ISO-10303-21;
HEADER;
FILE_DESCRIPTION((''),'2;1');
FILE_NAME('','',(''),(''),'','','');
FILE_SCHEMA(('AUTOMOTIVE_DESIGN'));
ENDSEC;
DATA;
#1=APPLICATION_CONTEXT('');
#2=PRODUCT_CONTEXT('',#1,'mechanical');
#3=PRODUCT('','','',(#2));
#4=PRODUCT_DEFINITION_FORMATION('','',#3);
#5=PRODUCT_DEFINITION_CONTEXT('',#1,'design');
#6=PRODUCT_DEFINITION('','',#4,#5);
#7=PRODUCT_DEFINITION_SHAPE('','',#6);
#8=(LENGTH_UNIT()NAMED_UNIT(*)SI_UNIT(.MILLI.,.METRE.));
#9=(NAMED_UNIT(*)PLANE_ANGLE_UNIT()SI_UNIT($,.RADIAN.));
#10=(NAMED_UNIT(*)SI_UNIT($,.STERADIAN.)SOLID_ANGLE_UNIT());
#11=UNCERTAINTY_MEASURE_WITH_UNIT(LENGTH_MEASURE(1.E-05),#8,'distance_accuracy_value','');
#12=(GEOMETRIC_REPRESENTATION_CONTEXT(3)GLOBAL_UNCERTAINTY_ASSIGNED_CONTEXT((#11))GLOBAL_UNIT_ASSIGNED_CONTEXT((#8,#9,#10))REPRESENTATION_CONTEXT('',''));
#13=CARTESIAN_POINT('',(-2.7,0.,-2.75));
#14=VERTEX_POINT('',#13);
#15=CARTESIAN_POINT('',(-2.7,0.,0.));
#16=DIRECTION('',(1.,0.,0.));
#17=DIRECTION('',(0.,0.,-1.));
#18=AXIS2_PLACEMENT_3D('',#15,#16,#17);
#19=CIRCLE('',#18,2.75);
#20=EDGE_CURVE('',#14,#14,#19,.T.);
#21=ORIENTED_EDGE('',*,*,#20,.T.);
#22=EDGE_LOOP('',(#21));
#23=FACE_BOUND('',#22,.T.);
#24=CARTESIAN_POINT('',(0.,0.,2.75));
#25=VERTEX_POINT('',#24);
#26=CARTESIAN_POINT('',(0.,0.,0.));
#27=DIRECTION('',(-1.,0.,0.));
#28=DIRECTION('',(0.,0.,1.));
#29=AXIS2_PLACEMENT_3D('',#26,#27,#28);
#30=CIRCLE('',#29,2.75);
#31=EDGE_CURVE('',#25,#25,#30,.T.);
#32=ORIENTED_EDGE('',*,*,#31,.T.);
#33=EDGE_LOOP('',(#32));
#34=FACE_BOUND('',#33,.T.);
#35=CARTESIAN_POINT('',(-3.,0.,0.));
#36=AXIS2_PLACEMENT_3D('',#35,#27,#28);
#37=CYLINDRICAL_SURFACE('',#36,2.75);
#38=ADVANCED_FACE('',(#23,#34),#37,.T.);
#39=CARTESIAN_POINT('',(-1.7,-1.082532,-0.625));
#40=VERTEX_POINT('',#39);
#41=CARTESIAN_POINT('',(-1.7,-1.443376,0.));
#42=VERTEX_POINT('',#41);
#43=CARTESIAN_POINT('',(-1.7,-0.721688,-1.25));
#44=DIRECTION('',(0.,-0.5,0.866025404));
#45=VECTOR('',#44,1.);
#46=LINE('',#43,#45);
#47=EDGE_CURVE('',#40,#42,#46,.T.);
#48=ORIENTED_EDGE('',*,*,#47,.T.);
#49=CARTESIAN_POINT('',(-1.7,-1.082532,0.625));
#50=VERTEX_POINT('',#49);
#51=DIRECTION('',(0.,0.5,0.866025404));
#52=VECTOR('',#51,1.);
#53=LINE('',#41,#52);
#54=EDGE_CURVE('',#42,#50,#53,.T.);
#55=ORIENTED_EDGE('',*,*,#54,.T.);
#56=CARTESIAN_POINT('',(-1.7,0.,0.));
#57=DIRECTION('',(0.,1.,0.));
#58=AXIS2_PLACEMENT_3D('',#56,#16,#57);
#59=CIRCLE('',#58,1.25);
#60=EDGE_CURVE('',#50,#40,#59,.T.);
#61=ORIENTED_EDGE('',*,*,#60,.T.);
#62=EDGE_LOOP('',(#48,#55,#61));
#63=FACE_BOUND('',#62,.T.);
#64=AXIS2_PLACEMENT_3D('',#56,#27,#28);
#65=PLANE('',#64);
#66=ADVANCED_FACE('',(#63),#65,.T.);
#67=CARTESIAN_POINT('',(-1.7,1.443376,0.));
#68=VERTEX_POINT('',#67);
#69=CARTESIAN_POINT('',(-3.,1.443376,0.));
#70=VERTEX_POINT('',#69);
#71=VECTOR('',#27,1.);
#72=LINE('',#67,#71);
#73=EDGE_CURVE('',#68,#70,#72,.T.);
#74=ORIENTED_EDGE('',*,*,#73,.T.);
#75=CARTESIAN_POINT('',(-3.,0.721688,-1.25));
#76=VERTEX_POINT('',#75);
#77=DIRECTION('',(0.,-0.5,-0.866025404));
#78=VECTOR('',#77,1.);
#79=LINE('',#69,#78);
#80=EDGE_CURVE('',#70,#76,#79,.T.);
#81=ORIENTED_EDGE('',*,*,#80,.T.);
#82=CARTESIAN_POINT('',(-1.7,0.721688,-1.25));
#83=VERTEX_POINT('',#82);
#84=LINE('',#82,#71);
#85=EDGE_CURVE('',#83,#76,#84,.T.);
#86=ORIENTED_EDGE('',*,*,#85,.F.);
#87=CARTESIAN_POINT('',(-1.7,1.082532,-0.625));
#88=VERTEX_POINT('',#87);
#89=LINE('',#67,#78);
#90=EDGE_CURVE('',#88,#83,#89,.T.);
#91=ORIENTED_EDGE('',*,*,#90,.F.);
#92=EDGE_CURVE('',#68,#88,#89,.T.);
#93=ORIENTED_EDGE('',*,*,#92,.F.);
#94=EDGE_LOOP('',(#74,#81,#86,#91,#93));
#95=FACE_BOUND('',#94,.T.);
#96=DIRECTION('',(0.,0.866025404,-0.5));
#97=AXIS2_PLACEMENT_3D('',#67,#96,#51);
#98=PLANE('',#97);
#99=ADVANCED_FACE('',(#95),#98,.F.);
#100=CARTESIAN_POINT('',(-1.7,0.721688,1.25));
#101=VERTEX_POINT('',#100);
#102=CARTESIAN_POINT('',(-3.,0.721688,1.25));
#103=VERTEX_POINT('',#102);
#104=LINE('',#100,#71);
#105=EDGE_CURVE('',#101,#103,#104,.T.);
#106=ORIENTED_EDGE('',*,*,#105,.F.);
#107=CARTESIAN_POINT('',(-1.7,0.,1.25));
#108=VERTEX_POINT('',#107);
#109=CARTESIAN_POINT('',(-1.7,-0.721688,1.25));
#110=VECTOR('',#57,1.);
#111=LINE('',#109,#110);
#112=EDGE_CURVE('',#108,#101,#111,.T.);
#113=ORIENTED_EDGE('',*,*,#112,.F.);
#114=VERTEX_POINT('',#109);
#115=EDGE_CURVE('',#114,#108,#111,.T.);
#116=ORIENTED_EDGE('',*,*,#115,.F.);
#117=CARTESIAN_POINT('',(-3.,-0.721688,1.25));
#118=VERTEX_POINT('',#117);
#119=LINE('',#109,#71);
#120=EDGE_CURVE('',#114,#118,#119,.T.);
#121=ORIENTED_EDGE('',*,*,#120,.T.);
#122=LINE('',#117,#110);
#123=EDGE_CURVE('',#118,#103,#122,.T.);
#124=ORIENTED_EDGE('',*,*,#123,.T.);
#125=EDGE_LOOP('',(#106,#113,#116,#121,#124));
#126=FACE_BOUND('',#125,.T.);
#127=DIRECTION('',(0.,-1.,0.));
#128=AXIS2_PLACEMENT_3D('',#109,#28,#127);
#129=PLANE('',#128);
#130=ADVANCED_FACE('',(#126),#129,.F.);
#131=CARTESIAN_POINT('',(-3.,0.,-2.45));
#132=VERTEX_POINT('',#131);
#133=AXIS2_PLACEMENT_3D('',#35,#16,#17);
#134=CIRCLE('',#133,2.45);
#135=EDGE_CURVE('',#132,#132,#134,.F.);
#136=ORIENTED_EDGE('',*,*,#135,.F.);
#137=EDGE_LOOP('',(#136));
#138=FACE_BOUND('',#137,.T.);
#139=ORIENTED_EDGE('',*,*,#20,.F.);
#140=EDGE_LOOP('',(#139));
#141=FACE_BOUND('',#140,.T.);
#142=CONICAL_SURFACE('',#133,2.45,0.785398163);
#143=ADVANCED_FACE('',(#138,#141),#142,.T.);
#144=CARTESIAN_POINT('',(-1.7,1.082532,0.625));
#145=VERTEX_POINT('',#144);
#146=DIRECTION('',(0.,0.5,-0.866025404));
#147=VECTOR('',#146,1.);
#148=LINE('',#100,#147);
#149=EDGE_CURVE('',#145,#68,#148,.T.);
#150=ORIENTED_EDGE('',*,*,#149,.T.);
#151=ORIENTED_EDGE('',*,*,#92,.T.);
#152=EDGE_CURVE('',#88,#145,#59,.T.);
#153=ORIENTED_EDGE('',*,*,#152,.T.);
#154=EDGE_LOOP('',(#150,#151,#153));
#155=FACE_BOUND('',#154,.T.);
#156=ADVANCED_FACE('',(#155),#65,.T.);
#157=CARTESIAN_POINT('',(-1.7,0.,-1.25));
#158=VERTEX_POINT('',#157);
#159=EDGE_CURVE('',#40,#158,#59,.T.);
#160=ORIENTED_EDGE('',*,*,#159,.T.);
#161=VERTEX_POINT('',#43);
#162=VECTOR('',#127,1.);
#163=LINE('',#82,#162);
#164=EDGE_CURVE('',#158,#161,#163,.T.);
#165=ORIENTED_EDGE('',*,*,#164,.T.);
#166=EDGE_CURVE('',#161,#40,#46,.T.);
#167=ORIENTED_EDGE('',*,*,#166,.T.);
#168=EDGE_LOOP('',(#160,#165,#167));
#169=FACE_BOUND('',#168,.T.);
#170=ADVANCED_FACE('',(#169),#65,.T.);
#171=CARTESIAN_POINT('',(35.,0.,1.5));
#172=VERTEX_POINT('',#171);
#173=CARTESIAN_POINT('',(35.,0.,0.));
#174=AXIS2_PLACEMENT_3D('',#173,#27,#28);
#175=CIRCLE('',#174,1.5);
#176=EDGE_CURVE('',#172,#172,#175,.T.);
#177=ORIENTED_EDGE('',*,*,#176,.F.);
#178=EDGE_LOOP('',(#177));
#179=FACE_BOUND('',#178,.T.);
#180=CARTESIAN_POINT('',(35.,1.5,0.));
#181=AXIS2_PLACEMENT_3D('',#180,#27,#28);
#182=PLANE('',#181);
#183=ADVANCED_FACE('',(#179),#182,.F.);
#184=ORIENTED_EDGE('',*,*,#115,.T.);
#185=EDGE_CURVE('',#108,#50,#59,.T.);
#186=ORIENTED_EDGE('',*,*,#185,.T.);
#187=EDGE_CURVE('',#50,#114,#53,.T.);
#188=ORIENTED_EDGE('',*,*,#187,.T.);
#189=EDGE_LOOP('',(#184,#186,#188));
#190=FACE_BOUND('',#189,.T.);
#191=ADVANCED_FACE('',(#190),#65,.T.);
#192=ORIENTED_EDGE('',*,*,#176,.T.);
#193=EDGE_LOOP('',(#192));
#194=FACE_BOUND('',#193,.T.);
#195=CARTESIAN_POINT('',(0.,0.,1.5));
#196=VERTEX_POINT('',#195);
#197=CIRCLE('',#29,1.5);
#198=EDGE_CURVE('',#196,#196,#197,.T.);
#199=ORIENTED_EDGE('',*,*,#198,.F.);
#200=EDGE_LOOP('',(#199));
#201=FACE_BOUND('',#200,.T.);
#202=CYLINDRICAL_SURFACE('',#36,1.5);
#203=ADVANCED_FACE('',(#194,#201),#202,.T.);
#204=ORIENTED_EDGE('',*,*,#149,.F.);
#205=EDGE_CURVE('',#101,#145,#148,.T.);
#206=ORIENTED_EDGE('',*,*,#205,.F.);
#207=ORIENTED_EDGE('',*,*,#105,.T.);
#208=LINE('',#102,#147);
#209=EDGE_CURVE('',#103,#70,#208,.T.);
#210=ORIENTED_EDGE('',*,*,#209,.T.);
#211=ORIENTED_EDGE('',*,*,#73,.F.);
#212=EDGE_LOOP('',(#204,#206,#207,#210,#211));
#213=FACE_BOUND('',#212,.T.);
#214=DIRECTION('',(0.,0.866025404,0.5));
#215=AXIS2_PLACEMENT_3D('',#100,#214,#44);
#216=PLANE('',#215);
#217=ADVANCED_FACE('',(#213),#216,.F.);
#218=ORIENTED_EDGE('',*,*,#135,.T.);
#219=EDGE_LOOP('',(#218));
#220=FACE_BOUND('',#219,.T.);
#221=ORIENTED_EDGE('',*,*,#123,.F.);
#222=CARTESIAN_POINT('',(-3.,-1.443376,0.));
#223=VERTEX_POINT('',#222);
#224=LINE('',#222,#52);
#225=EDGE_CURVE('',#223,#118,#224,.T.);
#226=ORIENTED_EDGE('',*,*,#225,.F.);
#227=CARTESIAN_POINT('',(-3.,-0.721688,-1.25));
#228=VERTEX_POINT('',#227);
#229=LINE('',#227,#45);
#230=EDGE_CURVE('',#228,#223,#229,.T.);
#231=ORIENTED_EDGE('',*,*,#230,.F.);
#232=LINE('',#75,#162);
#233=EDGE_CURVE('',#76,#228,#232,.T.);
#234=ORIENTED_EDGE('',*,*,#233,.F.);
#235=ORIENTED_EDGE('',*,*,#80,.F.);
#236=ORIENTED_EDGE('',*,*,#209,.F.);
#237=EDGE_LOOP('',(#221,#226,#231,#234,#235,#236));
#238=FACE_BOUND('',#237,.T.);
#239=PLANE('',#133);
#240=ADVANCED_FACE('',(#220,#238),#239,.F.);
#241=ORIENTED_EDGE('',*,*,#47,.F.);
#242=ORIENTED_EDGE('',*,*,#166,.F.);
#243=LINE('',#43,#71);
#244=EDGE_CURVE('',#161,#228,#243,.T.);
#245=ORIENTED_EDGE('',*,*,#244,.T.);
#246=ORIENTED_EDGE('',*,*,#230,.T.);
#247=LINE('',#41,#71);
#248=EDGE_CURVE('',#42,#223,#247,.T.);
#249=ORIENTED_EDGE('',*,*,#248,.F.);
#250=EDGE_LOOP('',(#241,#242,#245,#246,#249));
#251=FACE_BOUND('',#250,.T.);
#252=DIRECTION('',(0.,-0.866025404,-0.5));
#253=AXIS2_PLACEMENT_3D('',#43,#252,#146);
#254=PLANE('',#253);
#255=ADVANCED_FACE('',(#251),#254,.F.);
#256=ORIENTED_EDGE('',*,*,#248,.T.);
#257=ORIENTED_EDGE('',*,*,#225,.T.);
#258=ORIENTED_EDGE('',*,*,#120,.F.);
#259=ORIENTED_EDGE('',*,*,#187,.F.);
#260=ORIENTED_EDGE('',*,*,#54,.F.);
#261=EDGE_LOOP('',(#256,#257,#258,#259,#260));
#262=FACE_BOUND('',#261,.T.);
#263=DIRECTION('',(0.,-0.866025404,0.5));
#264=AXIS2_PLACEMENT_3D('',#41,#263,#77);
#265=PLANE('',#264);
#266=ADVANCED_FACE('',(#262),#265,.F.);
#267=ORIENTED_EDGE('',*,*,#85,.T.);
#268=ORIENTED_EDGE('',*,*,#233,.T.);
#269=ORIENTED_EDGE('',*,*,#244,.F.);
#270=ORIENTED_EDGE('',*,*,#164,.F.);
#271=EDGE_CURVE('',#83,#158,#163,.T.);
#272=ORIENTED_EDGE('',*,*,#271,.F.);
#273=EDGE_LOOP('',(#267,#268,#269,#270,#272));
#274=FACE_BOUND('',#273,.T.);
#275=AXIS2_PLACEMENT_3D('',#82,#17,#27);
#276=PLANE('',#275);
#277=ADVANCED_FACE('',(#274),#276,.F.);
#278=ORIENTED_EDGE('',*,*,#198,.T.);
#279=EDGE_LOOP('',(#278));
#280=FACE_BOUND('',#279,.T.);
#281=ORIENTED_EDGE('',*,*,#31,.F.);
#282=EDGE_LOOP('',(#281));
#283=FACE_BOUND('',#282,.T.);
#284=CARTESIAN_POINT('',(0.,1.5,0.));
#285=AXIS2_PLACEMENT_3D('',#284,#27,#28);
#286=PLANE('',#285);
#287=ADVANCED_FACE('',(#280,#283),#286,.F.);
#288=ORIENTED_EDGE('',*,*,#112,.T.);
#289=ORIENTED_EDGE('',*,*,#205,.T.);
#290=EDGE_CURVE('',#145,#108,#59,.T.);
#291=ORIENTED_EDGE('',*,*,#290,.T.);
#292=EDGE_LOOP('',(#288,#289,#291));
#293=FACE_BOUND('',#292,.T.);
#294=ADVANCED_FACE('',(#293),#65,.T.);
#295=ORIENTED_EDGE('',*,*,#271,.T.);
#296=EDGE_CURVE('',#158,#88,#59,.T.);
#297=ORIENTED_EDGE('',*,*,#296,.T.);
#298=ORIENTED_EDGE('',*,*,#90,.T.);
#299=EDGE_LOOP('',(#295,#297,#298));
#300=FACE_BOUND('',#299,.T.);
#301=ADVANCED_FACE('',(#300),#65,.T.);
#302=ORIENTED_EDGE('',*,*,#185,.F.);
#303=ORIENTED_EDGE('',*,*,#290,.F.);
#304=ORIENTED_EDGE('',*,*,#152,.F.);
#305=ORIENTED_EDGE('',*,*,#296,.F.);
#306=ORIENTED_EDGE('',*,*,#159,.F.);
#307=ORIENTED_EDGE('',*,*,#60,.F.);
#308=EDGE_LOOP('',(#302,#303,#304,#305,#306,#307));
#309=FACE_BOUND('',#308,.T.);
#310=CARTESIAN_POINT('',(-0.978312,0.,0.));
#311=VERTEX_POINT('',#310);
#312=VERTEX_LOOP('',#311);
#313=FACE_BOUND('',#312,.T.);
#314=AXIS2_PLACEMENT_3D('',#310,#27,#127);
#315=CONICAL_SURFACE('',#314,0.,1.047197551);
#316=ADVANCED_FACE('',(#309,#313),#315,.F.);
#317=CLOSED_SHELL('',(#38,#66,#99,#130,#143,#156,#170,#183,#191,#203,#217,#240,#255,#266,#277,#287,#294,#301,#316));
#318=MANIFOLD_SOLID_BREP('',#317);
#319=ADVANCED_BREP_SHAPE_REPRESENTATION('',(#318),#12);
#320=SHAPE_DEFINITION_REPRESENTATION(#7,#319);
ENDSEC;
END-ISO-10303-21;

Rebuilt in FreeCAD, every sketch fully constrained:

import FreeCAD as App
import Part
import Sketcher
Q = App.Units.Quantity


def edges_at(feature, points):
    """Names of the edges that pass closest to the given points."""
    edges = feature.Shape.Edges
    near = lambda p: min(range(len(edges)), key=lambda i: edges[i].distToShape(Part.Vertex(*p))[0])
    return sorted({f"Edge{near(p) + 1}" for p in points})

doc = App.newDocument("Part")
params = doc.addObject("Spreadsheet::Sheet", "Params")
for row, (alias, value) in enumerate([
    ("sketch1_width", "38 mm"),
    ("sketch1_width2", "35 mm"),
    ("sketch1_height", "1.5 mm"),
    ("sketch1_height2", "1.25 mm"),
    ("revolution_angle", "360 deg"),
    ("pocket1_length", "1.3 mm"),
    ("sketch3_height", "1.25 mm"),
    ("groove_angle", "360 deg"),
    ("chamfer_size", "0.3 mm"),
], start=1):
    params.set(f"A{row}", alias)
    params.set(f"B{row}", "=" + value)
    params.setAlias(f"B{row}", alias)

body = doc.addObject("PartDesign::Body", "Body")

sketch1 = body.newObject("Sketcher::SketchObject", "Sketch")
sketch1.AttachmentSupport = (doc.getObject("XY_Plane"), [""])
sketch1.MapMode = "FlatFace"
sketch1.addGeometry([
    Part.LineSegment(App.Vector(-3, 0, 0), App.Vector(35, 0, 0)),
    Part.LineSegment(App.Vector(35, 0, 0), App.Vector(35, 1.5, 0)),
    Part.LineSegment(App.Vector(35, 1.5, 0), App.Vector(0, 1.5, 0)),
    Part.LineSegment(App.Vector(0, 1.5, 0), App.Vector(0, 2.75, 0)),
    Part.LineSegment(App.Vector(0, 2.75, 0), App.Vector(-3, 2.75, 0)),
    Part.LineSegment(App.Vector(-3, 2.75, 0), App.Vector(-3, 0, 0)),
], False)
sketch1.addConstraint([
    Sketcher.Constraint("Coincident", 0, 2, 1, 1),
    Sketcher.Constraint("Coincident", 1, 2, 2, 1),
    Sketcher.Constraint("Coincident", 2, 2, 3, 1),
    Sketcher.Constraint("Coincident", 3, 2, 4, 1),
    Sketcher.Constraint("Coincident", 4, 2, 5, 1),
    Sketcher.Constraint("Coincident", 5, 2, 0, 1),
    Sketcher.Constraint("Horizontal", 0),
    Sketcher.Constraint("Vertical", 1),
    Sketcher.Constraint("Horizontal", 2),
    Sketcher.Constraint("Vertical", 3),
    Sketcher.Constraint("Horizontal", 4),
    Sketcher.Constraint("Vertical", 5),
    Sketcher.Constraint("PointOnObject", 0, 2, -1),
    Sketcher.Constraint("PointOnObject", 2, 2, -2),
    Sketcher.Constraint("DistanceX", 0, 1, 0, 2, Q("38 mm")),
    Sketcher.Constraint("DistanceX", 2, 2, 2, 1, Q("35 mm")),
    Sketcher.Constraint("DistanceY", 1, 1, 1, 2, Q("1.5 mm")),
    Sketcher.Constraint("DistanceY", 3, 1, 3, 2, Q("1.25 mm")),
])
sketch1.setExpression("Constraints[14]", "Params.sketch1_width")
sketch1.setExpression("Constraints[15]", "Params.sketch1_width2")
sketch1.setExpression("Constraints[16]", "Params.sketch1_height")
sketch1.setExpression("Constraints[17]", "Params.sketch1_height2")
revolution = body.newObject("PartDesign::Revolution", "Revolution")
revolution.Profile = sketch1
revolution.ReferenceAxis = (sketch1, ["H_Axis"])
revolution.setExpression("Angle", "Params.revolution_angle")

sketch2 = body.newObject("Sketcher::SketchObject", "Sketch001")
sketch2.AttachmentSupport = (doc.getObject("YZ_Plane"), [""])
sketch2.MapMode = "FlatFace"
sketch2.AttachmentOffset = App.Placement(App.Vector(0, 0, -3), App.Rotation())
sketch2.addGeometry([
    Part.LineSegment(App.Vector(1.443376, 0, 0), App.Vector(0.721688, -1.25, 0)),
    Part.LineSegment(App.Vector(0.721688, -1.25, 0), App.Vector(-0.721688, -1.25, 0)),
    Part.LineSegment(App.Vector(-0.721688, -1.25, 0), App.Vector(-1.443376, 0, 0)),
    Part.LineSegment(App.Vector(-1.443376, 0, 0), App.Vector(-0.721688, 1.25, 0)),
    Part.LineSegment(App.Vector(-0.721688, 1.25, 0), App.Vector(0.721688, 1.25, 0)),
    Part.LineSegment(App.Vector(0.721688, 1.25, 0), App.Vector(1.443376, 0, 0)),
], False)
sketch2.addConstraint([
    Sketcher.Constraint("Coincident", 0, 2, 1, 1),
    Sketcher.Constraint("Coincident", 1, 2, 2, 1),
    Sketcher.Constraint("Coincident", 2, 2, 3, 1),
    Sketcher.Constraint("Coincident", 3, 2, 4, 1),
    Sketcher.Constraint("Coincident", 4, 2, 5, 1),
    Sketcher.Constraint("Coincident", 5, 2, 0, 1),
    Sketcher.Constraint("Horizontal", 1),
    Sketcher.Constraint("Horizontal", 4),
    Sketcher.Constraint("Symmetric", 0, 2, 3, 2, -1, 1),
    Sketcher.Constraint("Symmetric", 2, 2, 5, 2, -1, 1),
    Sketcher.Constraint("PointOnObject", 2, 2, -1),
    Sketcher.Constraint("Parallel", 2, 5),
    Sketcher.Constraint("Vertical", 1, 2, 3, 2),
    Sketcher.Constraint("Angle", 0, Q("-120 deg")),
    Sketcher.Constraint("DistanceY", 1, 2, 3, 2, Q("2.5 mm")),
    Sketcher.Constraint("DistanceX", 1, 2, 1, 1, Q("1.443376 mm")),
])
pocket1 = body.newObject("PartDesign::Pocket", "Pocket")
pocket1.Profile = sketch2
pocket1.setExpression("Length", "Params.pocket1_length")
pocket1.Reversed = True

sketch3 = body.newObject("Sketcher::SketchObject", "Sketch002")
sketch3.AttachmentSupport = (doc.getObject("XY_Plane"), [""])
sketch3.MapMode = "FlatFace"
sketch3.addGeometry([
    Part.LineSegment(App.Vector(-1.7, 1.25, 0), App.Vector(-1.7, 0, 0)),
    Part.LineSegment(App.Vector(-1.7, 0, 0), App.Vector(-0.978312, 0, 0)),
    Part.LineSegment(App.Vector(-0.978312, 0, 0), App.Vector(-1.7, 1.25, 0)),
], False)
sketch3.addConstraint([
    Sketcher.Constraint("Coincident", 0, 2, 1, 1),
    Sketcher.Constraint("Coincident", 1, 2, 2, 1),
    Sketcher.Constraint("Coincident", 2, 2, 0, 1),
    Sketcher.Constraint("Vertical", 0),
    Sketcher.Constraint("Horizontal", 1),
    Sketcher.Constraint("PointOnObject", 0, 2, -1),
    Sketcher.Constraint("Angle", 2, Q("120 deg")),
    Sketcher.Constraint("DistanceY", 0, 2, 0, 1, Q("1.25 mm")),
    Sketcher.Constraint("DistanceX", 0, 2, -1, 1, Q("1.7 mm")),
])
sketch3.setExpression("Constraints[7]", "Params.sketch3_height")
groove = body.newObject("PartDesign::Groove", "Groove")
groove.Profile = sketch3
groove.ReferenceAxis = (sketch3, ["H_Axis"])
groove.setExpression("Angle", "Params.groove_angle")
doc.recompute()

chamfer = body.newObject("PartDesign::Chamfer", "Chamfer")
chamfer.Base = (groove, edges_at(groove, [(-3, 0, -2.75)]))
chamfer.setExpression("Size", "Params.chamfer_size")

doc.recompute()
